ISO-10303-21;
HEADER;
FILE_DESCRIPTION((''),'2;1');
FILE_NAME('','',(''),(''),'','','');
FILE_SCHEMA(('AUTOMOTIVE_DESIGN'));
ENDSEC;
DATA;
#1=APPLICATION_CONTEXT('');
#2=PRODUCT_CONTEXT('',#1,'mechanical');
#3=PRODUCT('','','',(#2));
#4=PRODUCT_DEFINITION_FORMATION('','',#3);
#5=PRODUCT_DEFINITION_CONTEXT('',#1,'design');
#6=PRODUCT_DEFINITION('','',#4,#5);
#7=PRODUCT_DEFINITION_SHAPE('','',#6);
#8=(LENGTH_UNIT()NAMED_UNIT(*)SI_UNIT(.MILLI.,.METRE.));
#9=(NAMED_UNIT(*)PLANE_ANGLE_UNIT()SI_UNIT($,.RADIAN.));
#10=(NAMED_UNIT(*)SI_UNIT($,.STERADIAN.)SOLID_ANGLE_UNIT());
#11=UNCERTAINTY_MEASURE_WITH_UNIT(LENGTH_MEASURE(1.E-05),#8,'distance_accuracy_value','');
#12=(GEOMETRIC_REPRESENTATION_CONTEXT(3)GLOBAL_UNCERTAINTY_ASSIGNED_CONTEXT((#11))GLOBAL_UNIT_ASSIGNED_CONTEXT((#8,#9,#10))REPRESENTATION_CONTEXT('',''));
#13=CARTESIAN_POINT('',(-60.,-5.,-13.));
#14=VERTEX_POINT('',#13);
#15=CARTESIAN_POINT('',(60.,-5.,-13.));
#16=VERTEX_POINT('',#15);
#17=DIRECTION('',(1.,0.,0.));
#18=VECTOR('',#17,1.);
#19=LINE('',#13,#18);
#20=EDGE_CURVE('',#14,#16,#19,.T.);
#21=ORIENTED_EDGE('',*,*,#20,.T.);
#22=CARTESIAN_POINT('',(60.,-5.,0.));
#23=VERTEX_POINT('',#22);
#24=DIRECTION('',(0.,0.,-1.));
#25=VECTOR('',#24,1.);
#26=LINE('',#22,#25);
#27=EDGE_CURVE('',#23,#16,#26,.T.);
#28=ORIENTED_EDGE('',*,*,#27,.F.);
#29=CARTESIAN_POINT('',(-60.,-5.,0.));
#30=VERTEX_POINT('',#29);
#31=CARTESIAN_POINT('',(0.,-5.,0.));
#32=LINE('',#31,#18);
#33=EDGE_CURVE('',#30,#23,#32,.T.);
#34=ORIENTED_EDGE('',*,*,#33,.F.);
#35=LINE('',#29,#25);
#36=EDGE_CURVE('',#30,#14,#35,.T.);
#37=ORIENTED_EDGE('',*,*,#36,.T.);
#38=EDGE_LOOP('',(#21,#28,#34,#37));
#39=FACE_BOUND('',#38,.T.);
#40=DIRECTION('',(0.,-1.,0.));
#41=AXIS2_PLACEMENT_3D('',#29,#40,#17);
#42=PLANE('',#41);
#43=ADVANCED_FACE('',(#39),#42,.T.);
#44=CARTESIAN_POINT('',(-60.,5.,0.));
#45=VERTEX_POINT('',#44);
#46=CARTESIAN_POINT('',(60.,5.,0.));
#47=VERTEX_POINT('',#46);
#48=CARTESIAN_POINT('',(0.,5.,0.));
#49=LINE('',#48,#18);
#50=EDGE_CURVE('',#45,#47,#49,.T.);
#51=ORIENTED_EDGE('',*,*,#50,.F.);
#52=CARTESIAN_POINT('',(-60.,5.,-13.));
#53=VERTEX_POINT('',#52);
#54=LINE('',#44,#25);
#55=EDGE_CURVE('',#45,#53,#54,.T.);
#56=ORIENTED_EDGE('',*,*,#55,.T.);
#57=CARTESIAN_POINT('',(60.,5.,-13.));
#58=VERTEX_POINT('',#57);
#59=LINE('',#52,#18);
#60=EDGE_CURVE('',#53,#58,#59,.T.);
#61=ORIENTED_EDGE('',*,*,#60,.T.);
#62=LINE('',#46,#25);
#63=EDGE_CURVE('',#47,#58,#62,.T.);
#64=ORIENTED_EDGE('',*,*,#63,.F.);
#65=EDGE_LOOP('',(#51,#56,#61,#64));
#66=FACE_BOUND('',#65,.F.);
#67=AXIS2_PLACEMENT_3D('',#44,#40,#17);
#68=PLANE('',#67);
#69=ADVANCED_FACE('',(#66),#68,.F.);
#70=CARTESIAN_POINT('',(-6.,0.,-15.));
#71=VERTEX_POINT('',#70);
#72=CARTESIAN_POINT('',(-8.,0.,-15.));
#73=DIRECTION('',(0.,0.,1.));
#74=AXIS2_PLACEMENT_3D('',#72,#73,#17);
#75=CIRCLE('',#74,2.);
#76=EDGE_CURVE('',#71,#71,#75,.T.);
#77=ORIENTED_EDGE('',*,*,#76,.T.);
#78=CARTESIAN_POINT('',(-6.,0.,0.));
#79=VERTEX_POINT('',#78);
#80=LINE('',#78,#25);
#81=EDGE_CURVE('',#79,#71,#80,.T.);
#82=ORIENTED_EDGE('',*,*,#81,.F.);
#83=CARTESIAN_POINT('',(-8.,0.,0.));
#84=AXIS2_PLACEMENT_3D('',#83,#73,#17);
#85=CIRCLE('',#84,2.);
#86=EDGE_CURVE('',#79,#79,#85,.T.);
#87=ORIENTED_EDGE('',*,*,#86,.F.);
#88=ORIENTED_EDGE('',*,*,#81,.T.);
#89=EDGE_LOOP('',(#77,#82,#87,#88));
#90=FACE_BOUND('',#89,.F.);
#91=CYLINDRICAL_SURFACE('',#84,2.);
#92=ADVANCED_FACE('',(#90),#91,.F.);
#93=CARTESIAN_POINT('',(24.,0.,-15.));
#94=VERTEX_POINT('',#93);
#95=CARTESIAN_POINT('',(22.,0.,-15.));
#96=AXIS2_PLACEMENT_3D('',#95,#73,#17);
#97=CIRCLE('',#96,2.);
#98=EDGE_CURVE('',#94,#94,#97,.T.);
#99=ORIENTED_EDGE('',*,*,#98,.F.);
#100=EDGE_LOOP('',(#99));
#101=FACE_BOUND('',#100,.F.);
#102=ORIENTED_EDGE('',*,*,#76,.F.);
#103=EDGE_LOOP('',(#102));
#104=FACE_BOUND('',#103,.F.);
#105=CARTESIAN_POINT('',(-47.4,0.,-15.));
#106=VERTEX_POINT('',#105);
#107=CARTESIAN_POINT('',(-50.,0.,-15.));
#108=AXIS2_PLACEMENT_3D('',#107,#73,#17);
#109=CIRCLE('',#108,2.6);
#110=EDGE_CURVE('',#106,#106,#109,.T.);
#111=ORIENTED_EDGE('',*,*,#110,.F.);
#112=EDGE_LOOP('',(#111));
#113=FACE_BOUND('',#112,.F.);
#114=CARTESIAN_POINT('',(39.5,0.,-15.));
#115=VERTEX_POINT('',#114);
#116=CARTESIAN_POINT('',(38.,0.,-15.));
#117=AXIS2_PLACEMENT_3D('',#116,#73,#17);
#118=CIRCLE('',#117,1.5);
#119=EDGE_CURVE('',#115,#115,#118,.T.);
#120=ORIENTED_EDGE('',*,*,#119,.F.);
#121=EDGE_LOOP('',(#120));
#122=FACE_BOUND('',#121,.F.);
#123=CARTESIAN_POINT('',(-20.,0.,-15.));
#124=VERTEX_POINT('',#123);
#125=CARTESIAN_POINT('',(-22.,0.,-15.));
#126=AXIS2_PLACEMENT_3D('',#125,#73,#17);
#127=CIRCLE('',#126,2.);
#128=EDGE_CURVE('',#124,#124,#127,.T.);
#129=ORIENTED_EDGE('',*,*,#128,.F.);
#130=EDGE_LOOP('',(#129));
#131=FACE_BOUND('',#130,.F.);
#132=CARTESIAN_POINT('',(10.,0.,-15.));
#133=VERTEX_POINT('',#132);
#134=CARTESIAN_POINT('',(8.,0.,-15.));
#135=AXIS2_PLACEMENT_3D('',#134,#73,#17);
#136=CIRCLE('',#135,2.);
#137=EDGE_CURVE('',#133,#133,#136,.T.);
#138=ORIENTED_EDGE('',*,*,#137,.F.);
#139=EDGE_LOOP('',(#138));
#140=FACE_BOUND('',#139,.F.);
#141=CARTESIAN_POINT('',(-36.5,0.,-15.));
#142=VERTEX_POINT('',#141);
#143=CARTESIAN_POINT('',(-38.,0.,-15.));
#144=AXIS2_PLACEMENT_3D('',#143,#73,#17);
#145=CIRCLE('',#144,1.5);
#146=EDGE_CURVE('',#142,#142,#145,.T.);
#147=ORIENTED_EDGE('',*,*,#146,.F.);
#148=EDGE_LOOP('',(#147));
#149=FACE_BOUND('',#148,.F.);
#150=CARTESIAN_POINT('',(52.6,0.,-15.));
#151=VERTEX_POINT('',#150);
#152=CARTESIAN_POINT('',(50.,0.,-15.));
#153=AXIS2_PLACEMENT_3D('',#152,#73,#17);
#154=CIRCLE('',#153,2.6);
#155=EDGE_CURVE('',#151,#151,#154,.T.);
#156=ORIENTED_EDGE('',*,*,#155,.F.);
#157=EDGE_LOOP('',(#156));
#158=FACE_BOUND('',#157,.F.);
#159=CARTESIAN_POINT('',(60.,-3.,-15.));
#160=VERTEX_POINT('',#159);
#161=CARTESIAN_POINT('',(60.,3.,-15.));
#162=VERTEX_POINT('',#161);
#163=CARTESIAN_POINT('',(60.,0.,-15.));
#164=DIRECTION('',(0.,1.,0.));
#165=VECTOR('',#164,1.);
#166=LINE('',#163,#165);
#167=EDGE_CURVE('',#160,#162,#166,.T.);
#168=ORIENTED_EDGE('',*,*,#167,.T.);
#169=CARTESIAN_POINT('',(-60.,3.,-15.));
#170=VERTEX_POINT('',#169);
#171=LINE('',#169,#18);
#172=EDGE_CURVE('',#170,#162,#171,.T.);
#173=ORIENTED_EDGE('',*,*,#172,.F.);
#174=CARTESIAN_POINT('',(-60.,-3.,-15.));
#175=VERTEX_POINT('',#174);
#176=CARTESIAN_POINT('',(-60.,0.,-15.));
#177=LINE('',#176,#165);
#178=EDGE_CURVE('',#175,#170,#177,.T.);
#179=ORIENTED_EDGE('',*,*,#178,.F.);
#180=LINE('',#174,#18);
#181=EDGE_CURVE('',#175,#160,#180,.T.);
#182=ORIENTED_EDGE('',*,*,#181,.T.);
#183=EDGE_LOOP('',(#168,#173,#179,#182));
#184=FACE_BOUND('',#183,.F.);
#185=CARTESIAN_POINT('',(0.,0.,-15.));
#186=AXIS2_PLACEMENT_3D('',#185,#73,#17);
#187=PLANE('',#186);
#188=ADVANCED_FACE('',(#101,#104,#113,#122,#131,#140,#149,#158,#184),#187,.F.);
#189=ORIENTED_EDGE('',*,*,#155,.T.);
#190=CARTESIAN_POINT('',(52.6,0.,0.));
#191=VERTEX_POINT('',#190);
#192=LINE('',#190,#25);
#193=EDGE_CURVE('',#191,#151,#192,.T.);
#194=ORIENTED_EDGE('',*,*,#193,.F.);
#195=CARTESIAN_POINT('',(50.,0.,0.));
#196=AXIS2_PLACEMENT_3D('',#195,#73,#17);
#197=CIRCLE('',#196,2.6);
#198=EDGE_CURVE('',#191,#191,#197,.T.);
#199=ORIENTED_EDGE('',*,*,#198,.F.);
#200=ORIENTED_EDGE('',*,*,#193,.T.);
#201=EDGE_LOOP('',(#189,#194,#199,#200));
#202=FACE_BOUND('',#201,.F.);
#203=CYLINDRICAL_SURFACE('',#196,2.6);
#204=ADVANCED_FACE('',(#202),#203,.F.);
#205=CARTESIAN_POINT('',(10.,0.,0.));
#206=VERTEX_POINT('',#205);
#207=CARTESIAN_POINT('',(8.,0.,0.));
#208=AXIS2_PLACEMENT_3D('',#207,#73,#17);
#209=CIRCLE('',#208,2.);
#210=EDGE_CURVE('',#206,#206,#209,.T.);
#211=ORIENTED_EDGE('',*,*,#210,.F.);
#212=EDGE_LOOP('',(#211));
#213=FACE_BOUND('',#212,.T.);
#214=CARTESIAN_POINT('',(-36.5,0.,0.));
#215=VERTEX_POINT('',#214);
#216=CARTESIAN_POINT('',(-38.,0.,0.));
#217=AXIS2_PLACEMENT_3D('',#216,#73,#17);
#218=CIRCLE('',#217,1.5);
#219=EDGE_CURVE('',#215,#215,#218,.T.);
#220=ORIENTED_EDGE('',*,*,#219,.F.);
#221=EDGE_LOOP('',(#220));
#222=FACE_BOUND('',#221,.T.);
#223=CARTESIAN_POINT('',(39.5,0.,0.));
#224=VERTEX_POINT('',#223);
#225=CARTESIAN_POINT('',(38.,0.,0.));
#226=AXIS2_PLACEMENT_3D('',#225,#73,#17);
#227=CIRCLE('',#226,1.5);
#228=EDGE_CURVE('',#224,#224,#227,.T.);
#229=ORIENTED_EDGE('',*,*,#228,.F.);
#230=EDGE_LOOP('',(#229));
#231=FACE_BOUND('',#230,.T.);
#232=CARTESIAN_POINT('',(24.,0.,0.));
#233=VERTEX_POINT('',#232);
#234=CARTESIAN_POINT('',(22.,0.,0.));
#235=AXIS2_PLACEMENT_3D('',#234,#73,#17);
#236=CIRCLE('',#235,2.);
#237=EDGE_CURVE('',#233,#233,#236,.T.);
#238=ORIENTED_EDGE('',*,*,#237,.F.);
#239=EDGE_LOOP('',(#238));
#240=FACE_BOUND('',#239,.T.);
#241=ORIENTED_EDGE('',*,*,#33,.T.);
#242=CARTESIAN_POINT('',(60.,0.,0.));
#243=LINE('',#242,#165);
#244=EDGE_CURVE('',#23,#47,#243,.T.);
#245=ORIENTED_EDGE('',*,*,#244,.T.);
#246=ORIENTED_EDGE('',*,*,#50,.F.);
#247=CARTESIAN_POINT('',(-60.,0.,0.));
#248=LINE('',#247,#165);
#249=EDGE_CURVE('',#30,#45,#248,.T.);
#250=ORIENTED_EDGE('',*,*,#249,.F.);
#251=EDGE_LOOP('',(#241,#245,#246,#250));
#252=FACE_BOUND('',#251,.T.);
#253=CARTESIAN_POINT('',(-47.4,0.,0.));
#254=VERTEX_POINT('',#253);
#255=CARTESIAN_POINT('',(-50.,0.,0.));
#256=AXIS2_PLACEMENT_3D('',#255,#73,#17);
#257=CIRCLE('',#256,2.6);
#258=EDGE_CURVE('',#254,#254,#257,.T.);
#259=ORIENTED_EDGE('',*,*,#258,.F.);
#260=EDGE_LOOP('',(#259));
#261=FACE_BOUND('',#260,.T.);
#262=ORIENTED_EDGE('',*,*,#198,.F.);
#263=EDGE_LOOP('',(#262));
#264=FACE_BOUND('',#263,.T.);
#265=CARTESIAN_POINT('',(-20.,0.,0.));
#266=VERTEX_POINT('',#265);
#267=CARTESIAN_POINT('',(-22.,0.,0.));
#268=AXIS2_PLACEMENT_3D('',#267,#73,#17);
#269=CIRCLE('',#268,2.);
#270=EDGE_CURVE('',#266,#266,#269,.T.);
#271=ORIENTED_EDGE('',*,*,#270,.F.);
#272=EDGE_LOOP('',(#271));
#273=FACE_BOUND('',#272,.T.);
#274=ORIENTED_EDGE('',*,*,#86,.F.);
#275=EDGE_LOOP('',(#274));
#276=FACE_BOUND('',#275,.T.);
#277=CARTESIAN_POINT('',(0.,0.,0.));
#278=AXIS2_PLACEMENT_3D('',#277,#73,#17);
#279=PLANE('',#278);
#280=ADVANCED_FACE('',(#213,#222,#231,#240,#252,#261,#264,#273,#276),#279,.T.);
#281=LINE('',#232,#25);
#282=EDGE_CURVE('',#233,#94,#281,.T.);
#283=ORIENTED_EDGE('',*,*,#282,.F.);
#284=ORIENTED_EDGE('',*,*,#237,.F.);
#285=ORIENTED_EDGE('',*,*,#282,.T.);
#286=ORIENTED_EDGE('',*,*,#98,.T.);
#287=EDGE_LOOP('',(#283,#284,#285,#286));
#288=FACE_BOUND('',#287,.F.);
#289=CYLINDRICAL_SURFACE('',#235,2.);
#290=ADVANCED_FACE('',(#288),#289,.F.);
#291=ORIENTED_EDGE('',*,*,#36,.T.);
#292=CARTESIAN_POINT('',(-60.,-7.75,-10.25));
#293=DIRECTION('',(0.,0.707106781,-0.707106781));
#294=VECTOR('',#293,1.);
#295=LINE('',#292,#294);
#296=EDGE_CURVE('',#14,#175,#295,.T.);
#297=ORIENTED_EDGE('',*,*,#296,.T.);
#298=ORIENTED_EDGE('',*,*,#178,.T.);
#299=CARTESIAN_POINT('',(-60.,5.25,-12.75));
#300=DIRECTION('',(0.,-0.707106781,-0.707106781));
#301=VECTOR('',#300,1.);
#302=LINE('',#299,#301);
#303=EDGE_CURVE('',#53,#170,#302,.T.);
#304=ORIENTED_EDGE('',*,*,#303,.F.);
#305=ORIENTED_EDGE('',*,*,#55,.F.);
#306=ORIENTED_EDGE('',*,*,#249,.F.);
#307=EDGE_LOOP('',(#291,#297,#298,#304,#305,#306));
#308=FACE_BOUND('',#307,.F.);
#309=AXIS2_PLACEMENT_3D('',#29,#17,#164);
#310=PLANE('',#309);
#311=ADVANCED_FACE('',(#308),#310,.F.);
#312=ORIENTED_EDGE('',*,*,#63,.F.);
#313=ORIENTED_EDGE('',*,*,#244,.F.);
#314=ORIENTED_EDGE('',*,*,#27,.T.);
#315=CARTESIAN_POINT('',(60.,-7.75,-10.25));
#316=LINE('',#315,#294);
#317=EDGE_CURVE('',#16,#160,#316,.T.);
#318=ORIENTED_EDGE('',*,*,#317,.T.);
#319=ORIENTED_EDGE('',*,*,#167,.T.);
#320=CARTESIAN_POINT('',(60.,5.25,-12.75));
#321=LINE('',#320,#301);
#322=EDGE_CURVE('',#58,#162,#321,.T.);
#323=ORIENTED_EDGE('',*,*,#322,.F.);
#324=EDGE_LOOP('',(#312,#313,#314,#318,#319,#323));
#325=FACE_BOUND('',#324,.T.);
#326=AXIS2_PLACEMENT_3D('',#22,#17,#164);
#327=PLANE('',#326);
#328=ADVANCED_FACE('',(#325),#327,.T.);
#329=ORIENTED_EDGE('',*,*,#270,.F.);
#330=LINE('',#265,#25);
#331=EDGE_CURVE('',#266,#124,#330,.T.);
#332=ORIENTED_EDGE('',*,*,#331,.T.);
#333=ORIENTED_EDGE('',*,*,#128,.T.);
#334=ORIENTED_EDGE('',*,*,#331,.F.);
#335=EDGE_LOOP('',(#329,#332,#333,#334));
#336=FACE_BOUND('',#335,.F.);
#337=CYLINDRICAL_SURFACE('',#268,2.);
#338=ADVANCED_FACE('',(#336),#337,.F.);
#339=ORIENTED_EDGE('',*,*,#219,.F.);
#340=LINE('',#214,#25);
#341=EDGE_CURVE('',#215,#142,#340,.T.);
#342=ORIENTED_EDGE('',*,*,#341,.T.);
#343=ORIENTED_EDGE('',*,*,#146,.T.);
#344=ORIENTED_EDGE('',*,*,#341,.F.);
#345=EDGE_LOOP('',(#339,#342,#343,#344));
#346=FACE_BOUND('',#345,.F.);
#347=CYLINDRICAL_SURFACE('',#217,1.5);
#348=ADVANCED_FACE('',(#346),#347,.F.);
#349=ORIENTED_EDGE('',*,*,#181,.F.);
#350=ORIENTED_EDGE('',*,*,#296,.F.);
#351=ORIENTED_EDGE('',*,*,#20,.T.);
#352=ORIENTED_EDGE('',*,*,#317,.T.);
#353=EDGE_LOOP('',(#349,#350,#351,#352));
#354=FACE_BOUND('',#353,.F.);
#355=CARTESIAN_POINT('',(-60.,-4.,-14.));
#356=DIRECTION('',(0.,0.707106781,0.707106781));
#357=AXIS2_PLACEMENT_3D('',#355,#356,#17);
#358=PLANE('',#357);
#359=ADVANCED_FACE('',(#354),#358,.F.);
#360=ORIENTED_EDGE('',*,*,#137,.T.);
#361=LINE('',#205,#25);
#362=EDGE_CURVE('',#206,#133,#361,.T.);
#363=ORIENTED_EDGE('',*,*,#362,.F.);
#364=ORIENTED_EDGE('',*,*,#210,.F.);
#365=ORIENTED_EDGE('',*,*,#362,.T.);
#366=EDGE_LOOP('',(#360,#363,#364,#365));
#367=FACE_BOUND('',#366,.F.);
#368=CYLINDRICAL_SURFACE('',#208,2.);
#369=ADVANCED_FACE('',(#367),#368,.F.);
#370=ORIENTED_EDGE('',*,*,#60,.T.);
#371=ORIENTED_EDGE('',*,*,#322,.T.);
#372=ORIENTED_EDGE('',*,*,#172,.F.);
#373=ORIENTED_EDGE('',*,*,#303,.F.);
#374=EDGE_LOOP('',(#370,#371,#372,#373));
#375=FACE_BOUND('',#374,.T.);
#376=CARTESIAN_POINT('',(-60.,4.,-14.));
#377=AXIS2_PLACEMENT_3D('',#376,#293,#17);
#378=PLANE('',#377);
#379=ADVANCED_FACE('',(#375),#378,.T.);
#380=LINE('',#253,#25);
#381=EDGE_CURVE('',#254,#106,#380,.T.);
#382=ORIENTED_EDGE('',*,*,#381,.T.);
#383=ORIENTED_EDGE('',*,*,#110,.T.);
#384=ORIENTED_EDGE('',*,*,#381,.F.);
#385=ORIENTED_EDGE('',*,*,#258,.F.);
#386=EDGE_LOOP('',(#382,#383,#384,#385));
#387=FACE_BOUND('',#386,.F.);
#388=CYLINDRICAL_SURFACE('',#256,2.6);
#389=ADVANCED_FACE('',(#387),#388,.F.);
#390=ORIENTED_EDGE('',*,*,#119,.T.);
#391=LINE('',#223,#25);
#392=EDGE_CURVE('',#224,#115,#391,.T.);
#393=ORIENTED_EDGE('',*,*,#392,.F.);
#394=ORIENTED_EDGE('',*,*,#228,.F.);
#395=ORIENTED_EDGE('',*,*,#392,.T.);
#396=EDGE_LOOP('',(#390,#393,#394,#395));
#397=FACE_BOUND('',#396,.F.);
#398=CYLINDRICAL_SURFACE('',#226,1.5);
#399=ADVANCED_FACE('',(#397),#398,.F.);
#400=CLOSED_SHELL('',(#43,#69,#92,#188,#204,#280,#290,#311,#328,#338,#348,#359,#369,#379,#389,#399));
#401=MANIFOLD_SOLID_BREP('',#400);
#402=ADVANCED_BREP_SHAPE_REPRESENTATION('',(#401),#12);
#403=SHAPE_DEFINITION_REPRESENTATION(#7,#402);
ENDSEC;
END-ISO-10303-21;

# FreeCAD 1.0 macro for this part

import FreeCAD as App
import Part
import Sketcher
Q = App.Units.Quantity


def edges_at(feature, points):
    """Names of the edges that pass closest to the given points."""
    edges = feature.Shape.Edges
    near = lambda p: min(range(len(edges)), key=lambda i: edges[i].distToShape(Part.Vertex(*p))[0])
    return sorted({f"Edge{near(p) + 1}" for p in points})


def add_polygon(sketch, points):
    """Adds a closed chain of lines whose ends are joined by coincident constraints."""
    first, n = sketch.GeometryCount, len(points)
    for a, b in zip(points, points[1:] + points[:1]):
        sketch.addGeometry(Part.LineSegment(App.Vector(*a, 0), App.Vector(*b, 0)), False)
    for i in range(n):
        sketch.addConstraint(Sketcher.Constraint("Coincident", first + i, 2, first + (i + 1) % n, 1))

doc = App.newDocument("Part")
body = doc.addObject("PartDesign::Body", "Body")

sketch1 = body.newObject("Sketcher::SketchObject", "Sketch")
sketch1.AttachmentSupport = (doc.getObject("XY_Plane"), [""])
sketch1.MapMode = "FlatFace"
add_polygon(sketch1, [(-60, 5), (-60, -5), (60, -5), (60, 5)])
sketch1.addGeometry(Part.Circle(App.Vector(-50, 0, 0), App.Vector(0, 0, 1), 2.6), False)
sketch1.addGeometry(Part.Circle(App.Vector(-38, 0, 0), App.Vector(0, 0, 1), 1.5), False)
sketch1.addGeometry(Part.Circle(App.Vector(-22, 0, 0), App.Vector(0, 0, 1), 2), False)
sketch1.addGeometry(Part.Circle(App.Vector(-8, 0, 0), App.Vector(0, 0, 1), 2), False)
sketch1.addGeometry(Part.Circle(App.Vector(8, 0, 0), App.Vector(0, 0, 1), 2), False)
sketch1.addGeometry(Part.Circle(App.Vector(22, 0, 0), App.Vector(0, 0, 1), 2), False)
sketch1.addGeometry(Part.Circle(App.Vector(38, 0, 0), App.Vector(0, 0, 1), 1.5), False)
sketch1.addGeometry(Part.Circle(App.Vector(50, 0, 0), App.Vector(0, 0, 1), 2.6), False)
sketch1.addConstraint(Sketcher.Constraint("Vertical", 0))
sketch1.addConstraint(Sketcher.Constraint("Horizontal", 1))
sketch1.addConstraint(Sketcher.Constraint("Vertical", 2))
sketch1.addConstraint(Sketcher.Constraint("Horizontal", 3))
sketch1.addConstraint(Sketcher.Constraint("Equal", 6, 7))
sketch1.addConstraint(Sketcher.Constraint("Equal", 7, 8))
sketch1.addConstraint(Sketcher.Constraint("Equal", 8, 9))
sketch1.addConstraint(Sketcher.Constraint("Equal", 5, 10))
sketch1.addConstraint(Sketcher.Constraint("Equal", 4, 11))
sketch1.addConstraint(Sketcher.Constraint("Symmetric", 7, 3, 8, 3, -1, 1))
sketch1.addConstraint(Sketcher.Constraint("Symmetric", 6, 3, 9, 3, -1, 1))
sketch1.addConstraint(Sketcher.Constraint("Symmetric", 5, 3, 10, 3, -1, 1))
sketch1.addConstraint(Sketcher.Constraint("Symmetric", 4, 3, 11, 3, -1, 1))
sketch1.addConstraint(Sketcher.Constraint("Symmetric", 0, 2, 2, 2, -1, 1))
sketch1.addConstraint(Sketcher.Constraint("PointOnObject", 4, 3, -1))
sketch1.addConstraint(Sketcher.Constraint("PointOnObject", 5, 3, -1))
sketch1.addConstraint(Sketcher.Constraint("PointOnObject", 6, 3, -1))
sketch1.addConstraint(Sketcher.Constraint("PointOnObject", 7, 3, -1))
sketch1.addConstraint(Sketcher.Constraint("Diameter", 5, Q("3 mm")))
sketch1.addConstraint(Sketcher.Constraint("Diameter", 6, Q("4 mm")))
sketch1.addConstraint(Sketcher.Constraint("Diameter", 4, Q("5.2 mm")))
sketch1.addConstraint(Sketcher.Constraint("DistanceX", 1, 1, 1, 2, Q("120 mm")))
sketch1.addConstraint(Sketcher.Constraint("DistanceY", 0, 2, 0, 1, Q("10 mm")))
sketch1.addConstraint(Sketcher.Constraint("DistanceX", 4, 3, -1, 1, Q("50 mm")))
sketch1.addConstraint(Sketcher.Constraint("DistanceX", 5, 3, -1, 1, Q("38 mm")))
sketch1.addConstraint(Sketcher.Constraint("DistanceX", 6, 3, -1, 1, Q("22 mm")))
sketch1.addConstraint(Sketcher.Constraint("DistanceX", 7, 3, -1, 1, Q("8 mm")))
pad1 = body.newObject("PartDesign::Pad", "Pad")
pad1.Profile = sketch1
pad1.Length = 15
pad1.Reversed = True
doc.recompute()

chamfer = body.newObject("PartDesign::Chamfer", "Chamfer")
chamfer.Base = (pad1, edges_at(pad1, [(0, -5, -15), (0, 5, -15)]))
chamfer.Size = 2

doc.recompute()
